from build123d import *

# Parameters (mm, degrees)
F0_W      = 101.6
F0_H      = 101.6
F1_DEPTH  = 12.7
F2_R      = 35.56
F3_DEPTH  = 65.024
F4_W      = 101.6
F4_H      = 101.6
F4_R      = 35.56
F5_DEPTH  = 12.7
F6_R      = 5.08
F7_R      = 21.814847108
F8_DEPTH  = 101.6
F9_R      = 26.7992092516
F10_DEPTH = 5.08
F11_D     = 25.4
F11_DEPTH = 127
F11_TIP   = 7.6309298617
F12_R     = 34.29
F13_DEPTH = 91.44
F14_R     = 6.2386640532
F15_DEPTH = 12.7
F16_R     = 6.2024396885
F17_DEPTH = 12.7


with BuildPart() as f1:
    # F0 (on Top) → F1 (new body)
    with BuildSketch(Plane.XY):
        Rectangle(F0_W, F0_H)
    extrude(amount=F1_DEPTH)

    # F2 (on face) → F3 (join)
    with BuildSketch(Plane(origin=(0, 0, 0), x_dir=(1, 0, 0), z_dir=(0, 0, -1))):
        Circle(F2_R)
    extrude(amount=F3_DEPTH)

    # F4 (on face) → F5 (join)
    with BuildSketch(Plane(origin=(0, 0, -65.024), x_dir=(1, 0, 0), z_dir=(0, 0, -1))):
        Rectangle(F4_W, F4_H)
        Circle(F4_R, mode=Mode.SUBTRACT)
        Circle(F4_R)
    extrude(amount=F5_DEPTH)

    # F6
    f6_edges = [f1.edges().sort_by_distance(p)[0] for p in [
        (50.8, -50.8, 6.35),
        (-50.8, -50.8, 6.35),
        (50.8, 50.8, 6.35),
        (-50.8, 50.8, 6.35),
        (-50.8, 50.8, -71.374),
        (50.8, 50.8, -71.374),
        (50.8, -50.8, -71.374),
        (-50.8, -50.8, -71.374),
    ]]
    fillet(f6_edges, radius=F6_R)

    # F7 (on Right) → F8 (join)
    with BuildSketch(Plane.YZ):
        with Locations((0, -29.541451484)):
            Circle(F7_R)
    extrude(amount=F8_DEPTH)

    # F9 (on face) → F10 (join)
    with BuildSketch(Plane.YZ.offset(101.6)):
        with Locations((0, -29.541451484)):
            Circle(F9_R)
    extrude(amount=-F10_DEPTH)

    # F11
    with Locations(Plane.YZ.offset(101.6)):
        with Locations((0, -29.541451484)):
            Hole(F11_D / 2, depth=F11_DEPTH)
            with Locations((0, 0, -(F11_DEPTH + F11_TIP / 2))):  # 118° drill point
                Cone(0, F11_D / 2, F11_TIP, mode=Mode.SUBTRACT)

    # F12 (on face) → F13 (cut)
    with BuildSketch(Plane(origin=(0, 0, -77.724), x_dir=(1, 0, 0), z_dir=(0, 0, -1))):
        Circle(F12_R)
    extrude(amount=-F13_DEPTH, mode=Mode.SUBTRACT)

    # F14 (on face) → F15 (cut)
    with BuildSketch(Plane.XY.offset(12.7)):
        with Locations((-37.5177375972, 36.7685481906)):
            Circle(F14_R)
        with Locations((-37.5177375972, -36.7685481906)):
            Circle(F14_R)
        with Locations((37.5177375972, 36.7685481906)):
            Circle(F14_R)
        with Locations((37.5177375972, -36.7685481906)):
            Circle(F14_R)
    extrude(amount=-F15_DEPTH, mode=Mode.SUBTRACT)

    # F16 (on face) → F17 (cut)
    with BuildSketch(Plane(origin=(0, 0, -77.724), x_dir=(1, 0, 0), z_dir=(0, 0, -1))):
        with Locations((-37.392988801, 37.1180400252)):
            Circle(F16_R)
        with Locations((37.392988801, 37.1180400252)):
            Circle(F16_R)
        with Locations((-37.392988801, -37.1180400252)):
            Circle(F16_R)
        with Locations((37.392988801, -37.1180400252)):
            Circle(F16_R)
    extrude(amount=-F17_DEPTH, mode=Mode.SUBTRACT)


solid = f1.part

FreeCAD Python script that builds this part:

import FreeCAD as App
import Part
import Sketcher

V = App.Vector
Q = App.Units.Quantity


def edges_at(feature, points):
    """Names of the edges that pass closest to the given points."""
    edges = feature.Shape.Edges
    near = lambda p: min(range(len(edges)), key=lambda i: edges[i].distToShape(Part.Vertex(*p))[0])
    return sorted({f"Edge{near(p) + 1}" for p in points})

doc = App.newDocument("Part")
body = doc.addObject("PartDesign::Body", "Body")

sketch1 = body.newObject("Sketcher::SketchObject", "Sketch")
sketch1.AttachmentSupport = (doc.getObject("XY_Plane"), [""])
sketch1.MapMode = "FlatFace"
sketch1.addGeometry([
    Part.LineSegment(V(-50.8, 50.8, 0), V(-50.8, -50.8, 0)),
    Part.LineSegment(V(-50.8, -50.8, 0), V(50.8, -50.8, 0)),
    Part.LineSegment(V(50.8, -50.8, 0), V(50.8, 50.8, 0)),
    Part.LineSegment(V(50.8, 50.8, 0), V(-50.8, 50.8, 0)),
], False)
sketch1.addConstraint([
    Sketcher.Constraint("Coincident", 0, 2, 1, 1),
    Sketcher.Constraint("Coincident", 1, 2, 2, 1),
    Sketcher.Constraint("Coincident", 2, 2, 3, 1),
    Sketcher.Constraint("Coincident", 3, 2, 0, 1),
    Sketcher.Constraint("Vertical", 0),
    Sketcher.Constraint("Horizontal", 1),
    Sketcher.Constraint("Vertical", 2),
    Sketcher.Constraint("Horizontal", 3),
    Sketcher.Constraint("Symmetric", 0, 2, 2, 2, -1, 1),
    Sketcher.Constraint("Equal", 3, 0),
    Sketcher.Constraint("DistanceX", 1, 1, 1, 2, Q("4 in")),
])
pad1 = body.newObject("PartDesign::Pad", "Pad")
pad1.Profile = sketch1
pad1.Length = Q("0.5 in")

sketch2 = body.newObject("Sketcher::SketchObject", "Sketch001")
sketch2.AttachmentSupport = (doc.getObject("XY_Plane"), [""])
sketch2.MapMode = "FlatFace"
sketch2.addGeometry(Part.Circle(V(0, 0, 0), V(0, 0, 1), 35.56), False)
sketch2.addConstraint([
    Sketcher.Constraint("Coincident", 0, 3, -1, 1),
    Sketcher.Constraint("Diameter", 0, Q("2.8 in")),
])
pad2 = body.newObject("PartDesign::Pad", "Pad001")
pad2.Profile = sketch2
pad2.Length = Q("2.56 in")
pad2.Reversed = True

sketch3 = body.newObject("Sketcher::SketchObject", "Sketch002")
sketch3.AttachmentSupport = (doc.getObject("XY_Plane"), [""])
sketch3.MapMode = "FlatFace"
sketch3.AttachmentOffset = App.Placement(V(0, 0, -2.56 * 25.4), App.Rotation())
sketch3.addGeometry([
    Part.LineSegment(V(-50.8, -50.8, 0), V(-50.8, 50.8, 0)),
    Part.LineSegment(V(-50.8, 50.8, 0), V(50.8, 50.8, 0)),
    Part.LineSegment(V(50.8, 50.8, 0), V(50.8, -50.8, 0)),
    Part.LineSegment(V(50.8, -50.8, 0), V(-50.8, -50.8, 0)),
], False)
sketch3.addConstraint([
    Sketcher.Constraint("Coincident", 0, 2, 1, 1),
    Sketcher.Constraint("Coincident", 1, 2, 2, 1),
    Sketcher.Constraint("Coincident", 2, 2, 3, 1),
    Sketcher.Constraint("Coincident", 3, 2, 0, 1),
    Sketcher.Constraint("Vertical", 0),
    Sketcher.Constraint("Horizontal", 1),
    Sketcher.Constraint("Vertical", 2),
    Sketcher.Constraint("Horizontal", 3),
    Sketcher.Constraint("Symmetric", 0, 2, 2, 2, -1, 1),
    Sketcher.Constraint("Equal", 3, 0),
    Sketcher.Constraint("DistanceX", 1, 1, 1, 2, Q("4 in")),
])
pad3 = body.newObject("PartDesign::Pad", "Pad002")
pad3.Profile = sketch3
pad3.Length = Q("0.5 in")
pad3.Reversed = True
doc.recompute()

fillet = body.newObject("PartDesign::Fillet", "Fillet")
fillet.Base = (pad3, edges_at(pad3, [
    (50.8, -50.8, 6.35),
    (-50.8, -50.8, 6.35),
    (50.8, 50.8, 6.35),
    (-50.8, 50.8, 6.35),
    (-50.8, 50.8, -71.374),
    (50.8, 50.8, -71.374),
    (50.8, -50.8, -71.374),
    (-50.8, -50.8, -71.374),
]))
fillet.Radius = Q("0.2 in")

sketch4 = body.newObject("Sketcher::SketchObject", "Sketch003")
sketch4.AttachmentSupport = (doc.getObject("YZ_Plane"), [""])
sketch4.MapMode = "FlatFace"
sketch4.addGeometry(Part.Circle(V(0, -29.541451, 0), V(0, 0, 1), 21.814847), False)
sketch4.addConstraint([
    Sketcher.Constraint("PointOnObject", 0, 3, -2),
    Sketcher.Constraint("Diameter", 0, 43.629694),
    Sketcher.Constraint("DistanceY", 0, 3, -1, 1, 29.541451),
])
pad4 = body.newObject("PartDesign::Pad", "Pad003")
pad4.Profile = sketch4
pad4.Length = Q("4 in")

sketch5 = body.newObject("Sketcher::SketchObject", "Sketch004")
sketch5.AttachmentSupport = (doc.getObject("YZ_Plane"), [""])
sketch5.MapMode = "FlatFace"
sketch5.AttachmentOffset = App.Placement(V(0, 0, 4 * 25.4), App.Rotation())
sketch5.addGeometry(Part.Circle(V(0, -29.541451, 0), V(0, 0, 1), 26.799209), False)
sketch5.addConstraint([
    Sketcher.Constraint("PointOnObject", 0, 3, -2),
    Sketcher.Constraint("Diameter", 0, 53.598419),
    Sketcher.Constraint("DistanceY", 0, 3, -1, 1, 29.541451),
])
pad5 = body.newObject("PartDesign::Pad", "Pad004")
pad5.Profile = sketch5
pad5.Length = Q("0.2 in")
pad5.Reversed = True

sketch6 = body.newObject("Sketcher::SketchObject", "Sketch005")
sketch6.AttachmentSupport = (doc.getObject("YZ_Plane"), [""])
sketch6.MapMode = "FlatFace"
sketch6.AttachmentOffset = App.Placement(V(0, 0, 4 * 25.4), App.Rotation())
sketch6.addGeometry(Part.Circle(V(0, -29.541451, 0), V(0, 0, 1), 12.7), False)
sketch6.addConstraint([
    Sketcher.Constraint("PointOnObject", 0, 3, -2),
    Sketcher.Constraint("Diameter", 0, Q("1 in")),
    Sketcher.Constraint("DistanceY", 0, 3, -1, 1, 29.541451),
])
doc.recompute()
hole = body.newObject("PartDesign::Hole", "Hole")
hole.Profile = sketch6
hole.ThreadType = "None"
hole.Diameter = Q("1 in")
hole.DepthType = "Dimension"
hole.Depth = Q("5 in")
hole.DrillPoint = "Angled"
hole.DrillPointAngle = 118

sketch7 = body.newObject("Sketcher::SketchObject", "Sketch006")
sketch7.AttachmentSupport = (doc.getObject("XY_Plane"), [""])
sketch7.MapMode = "FlatFace"
sketch7.AttachmentOffset = App.Placement(V(0, 0, -3.06 * 25.4), App.Rotation())
sketch7.addGeometry(Part.Circle(V(0, 0, 0), V(0, 0, 1), 34.29), False)
sketch7.addConstraint([
    Sketcher.Constraint("Coincident", 0, 3, -1, 1),
    Sketcher.Constraint("Diameter", 0, Q("2.7 in")),
])
pocket1 = body.newObject("PartDesign::Pocket", "Pocket")
pocket1.Profile = sketch7
pocket1.Length = Q("3.6 in")
pocket1.Reversed = True

sketch8 = body.newObject("Sketcher::SketchObject", "Sketch007")
sketch8.AttachmentSupport = (doc.getObject("XY_Plane"), [""])
sketch8.MapMode = "FlatFace"
sketch8.AttachmentOffset = App.Placement(V(0, 0, 0.5 * 25.4), App.Rotation())
sketch8.addGeometry([
    Part.Circle(V(-37.517738, 36.768548, 0), V(0, 0, 1), 6.238664),
    Part.Circle(V(-37.517738, -36.768548, 0), V(0, 0, 1), 6.238664),
    Part.Circle(V(37.517738, 36.768548, 0), V(0, 0, 1), 6.238664),
    Part.Circle(V(37.517738, -36.768548, 0), V(0, 0, 1), 6.238664),
], False)
sketch8.addConstraint([
    Sketcher.Constraint("Equal", 0, 1),
    Sketcher.Constraint("Equal", 1, 2),
    Sketcher.Constraint("Equal", 2, 3),
    Sketcher.Constraint("Symmetric", 1, 3, 2, 3, -1, 1),
    Sketcher.Constraint("Symmetric", 0, 3, 3, 3, -1, 1),
    Sketcher.Constraint("Symmetric", 0, 3, 2, 3, -2),
    Sketcher.Constraint("Diameter", 0, 12.477328),
    Sketcher.Constraint("DistanceY", -1, 1, 0, 3, 36.768548),
    Sketcher.Constraint("DistanceX", 0, 3, -1, 1, 37.517738),
])
pocket2 = body.newObject("PartDesign::Pocket", "Pocket001")
pocket2.Profile = sketch8
pocket2.Length = Q("0.5 in")

sketch9 = body.newObject("Sketcher::SketchObject", "Sketch008")
sketch9.AttachmentSupport = (doc.getObject("XY_Plane"), [""])
sketch9.MapMode = "FlatFace"
sketch9.AttachmentOffset = App.Placement(V(0, 0, -3.06 * 25.4), App.Rotation())
sketch9.addGeometry([
    Part.Circle(V(-37.392989, -37.11804, 0), V(0, 0, 1), 6.20244),
    Part.Circle(V(37.392989, -37.11804, 0), V(0, 0, 1), 6.20244),
    Part.Circle(V(-37.392989, 37.11804, 0), V(0, 0, 1), 6.20244),
    Part.Circle(V(37.392989, 37.11804, 0), V(0, 0, 1), 6.20244),
], False)
sketch9.addConstraint([
    Sketcher.Constraint("Equal", 0, 1),
    Sketcher.Constraint("Equal", 1, 2),
    Sketcher.Constraint("Equal", 2, 3),
    Sketcher.Constraint("Symmetric", 1, 3, 2, 3, -1, 1),
    Sketcher.Constraint("Symmetric", 0, 3, 3, 3, -1, 1),
    Sketcher.Constraint("Symmetric", 0, 3, 1, 3, -2),
    Sketcher.Constraint("Diameter", 0, 12.404879),
    Sketcher.Constraint("DistanceX", 0, 3, -1, 1, 37.392989),
    Sketcher.Constraint("DistanceY", 0, 3, -1, 1, 37.11804),
])
pocket3 = body.newObject("PartDesign::Pocket", "Pocket002")
pocket3.Profile = sketch9
pocket3.Length = Q("0.5 in")
pocket3.Reversed = True

doc.recompute()
